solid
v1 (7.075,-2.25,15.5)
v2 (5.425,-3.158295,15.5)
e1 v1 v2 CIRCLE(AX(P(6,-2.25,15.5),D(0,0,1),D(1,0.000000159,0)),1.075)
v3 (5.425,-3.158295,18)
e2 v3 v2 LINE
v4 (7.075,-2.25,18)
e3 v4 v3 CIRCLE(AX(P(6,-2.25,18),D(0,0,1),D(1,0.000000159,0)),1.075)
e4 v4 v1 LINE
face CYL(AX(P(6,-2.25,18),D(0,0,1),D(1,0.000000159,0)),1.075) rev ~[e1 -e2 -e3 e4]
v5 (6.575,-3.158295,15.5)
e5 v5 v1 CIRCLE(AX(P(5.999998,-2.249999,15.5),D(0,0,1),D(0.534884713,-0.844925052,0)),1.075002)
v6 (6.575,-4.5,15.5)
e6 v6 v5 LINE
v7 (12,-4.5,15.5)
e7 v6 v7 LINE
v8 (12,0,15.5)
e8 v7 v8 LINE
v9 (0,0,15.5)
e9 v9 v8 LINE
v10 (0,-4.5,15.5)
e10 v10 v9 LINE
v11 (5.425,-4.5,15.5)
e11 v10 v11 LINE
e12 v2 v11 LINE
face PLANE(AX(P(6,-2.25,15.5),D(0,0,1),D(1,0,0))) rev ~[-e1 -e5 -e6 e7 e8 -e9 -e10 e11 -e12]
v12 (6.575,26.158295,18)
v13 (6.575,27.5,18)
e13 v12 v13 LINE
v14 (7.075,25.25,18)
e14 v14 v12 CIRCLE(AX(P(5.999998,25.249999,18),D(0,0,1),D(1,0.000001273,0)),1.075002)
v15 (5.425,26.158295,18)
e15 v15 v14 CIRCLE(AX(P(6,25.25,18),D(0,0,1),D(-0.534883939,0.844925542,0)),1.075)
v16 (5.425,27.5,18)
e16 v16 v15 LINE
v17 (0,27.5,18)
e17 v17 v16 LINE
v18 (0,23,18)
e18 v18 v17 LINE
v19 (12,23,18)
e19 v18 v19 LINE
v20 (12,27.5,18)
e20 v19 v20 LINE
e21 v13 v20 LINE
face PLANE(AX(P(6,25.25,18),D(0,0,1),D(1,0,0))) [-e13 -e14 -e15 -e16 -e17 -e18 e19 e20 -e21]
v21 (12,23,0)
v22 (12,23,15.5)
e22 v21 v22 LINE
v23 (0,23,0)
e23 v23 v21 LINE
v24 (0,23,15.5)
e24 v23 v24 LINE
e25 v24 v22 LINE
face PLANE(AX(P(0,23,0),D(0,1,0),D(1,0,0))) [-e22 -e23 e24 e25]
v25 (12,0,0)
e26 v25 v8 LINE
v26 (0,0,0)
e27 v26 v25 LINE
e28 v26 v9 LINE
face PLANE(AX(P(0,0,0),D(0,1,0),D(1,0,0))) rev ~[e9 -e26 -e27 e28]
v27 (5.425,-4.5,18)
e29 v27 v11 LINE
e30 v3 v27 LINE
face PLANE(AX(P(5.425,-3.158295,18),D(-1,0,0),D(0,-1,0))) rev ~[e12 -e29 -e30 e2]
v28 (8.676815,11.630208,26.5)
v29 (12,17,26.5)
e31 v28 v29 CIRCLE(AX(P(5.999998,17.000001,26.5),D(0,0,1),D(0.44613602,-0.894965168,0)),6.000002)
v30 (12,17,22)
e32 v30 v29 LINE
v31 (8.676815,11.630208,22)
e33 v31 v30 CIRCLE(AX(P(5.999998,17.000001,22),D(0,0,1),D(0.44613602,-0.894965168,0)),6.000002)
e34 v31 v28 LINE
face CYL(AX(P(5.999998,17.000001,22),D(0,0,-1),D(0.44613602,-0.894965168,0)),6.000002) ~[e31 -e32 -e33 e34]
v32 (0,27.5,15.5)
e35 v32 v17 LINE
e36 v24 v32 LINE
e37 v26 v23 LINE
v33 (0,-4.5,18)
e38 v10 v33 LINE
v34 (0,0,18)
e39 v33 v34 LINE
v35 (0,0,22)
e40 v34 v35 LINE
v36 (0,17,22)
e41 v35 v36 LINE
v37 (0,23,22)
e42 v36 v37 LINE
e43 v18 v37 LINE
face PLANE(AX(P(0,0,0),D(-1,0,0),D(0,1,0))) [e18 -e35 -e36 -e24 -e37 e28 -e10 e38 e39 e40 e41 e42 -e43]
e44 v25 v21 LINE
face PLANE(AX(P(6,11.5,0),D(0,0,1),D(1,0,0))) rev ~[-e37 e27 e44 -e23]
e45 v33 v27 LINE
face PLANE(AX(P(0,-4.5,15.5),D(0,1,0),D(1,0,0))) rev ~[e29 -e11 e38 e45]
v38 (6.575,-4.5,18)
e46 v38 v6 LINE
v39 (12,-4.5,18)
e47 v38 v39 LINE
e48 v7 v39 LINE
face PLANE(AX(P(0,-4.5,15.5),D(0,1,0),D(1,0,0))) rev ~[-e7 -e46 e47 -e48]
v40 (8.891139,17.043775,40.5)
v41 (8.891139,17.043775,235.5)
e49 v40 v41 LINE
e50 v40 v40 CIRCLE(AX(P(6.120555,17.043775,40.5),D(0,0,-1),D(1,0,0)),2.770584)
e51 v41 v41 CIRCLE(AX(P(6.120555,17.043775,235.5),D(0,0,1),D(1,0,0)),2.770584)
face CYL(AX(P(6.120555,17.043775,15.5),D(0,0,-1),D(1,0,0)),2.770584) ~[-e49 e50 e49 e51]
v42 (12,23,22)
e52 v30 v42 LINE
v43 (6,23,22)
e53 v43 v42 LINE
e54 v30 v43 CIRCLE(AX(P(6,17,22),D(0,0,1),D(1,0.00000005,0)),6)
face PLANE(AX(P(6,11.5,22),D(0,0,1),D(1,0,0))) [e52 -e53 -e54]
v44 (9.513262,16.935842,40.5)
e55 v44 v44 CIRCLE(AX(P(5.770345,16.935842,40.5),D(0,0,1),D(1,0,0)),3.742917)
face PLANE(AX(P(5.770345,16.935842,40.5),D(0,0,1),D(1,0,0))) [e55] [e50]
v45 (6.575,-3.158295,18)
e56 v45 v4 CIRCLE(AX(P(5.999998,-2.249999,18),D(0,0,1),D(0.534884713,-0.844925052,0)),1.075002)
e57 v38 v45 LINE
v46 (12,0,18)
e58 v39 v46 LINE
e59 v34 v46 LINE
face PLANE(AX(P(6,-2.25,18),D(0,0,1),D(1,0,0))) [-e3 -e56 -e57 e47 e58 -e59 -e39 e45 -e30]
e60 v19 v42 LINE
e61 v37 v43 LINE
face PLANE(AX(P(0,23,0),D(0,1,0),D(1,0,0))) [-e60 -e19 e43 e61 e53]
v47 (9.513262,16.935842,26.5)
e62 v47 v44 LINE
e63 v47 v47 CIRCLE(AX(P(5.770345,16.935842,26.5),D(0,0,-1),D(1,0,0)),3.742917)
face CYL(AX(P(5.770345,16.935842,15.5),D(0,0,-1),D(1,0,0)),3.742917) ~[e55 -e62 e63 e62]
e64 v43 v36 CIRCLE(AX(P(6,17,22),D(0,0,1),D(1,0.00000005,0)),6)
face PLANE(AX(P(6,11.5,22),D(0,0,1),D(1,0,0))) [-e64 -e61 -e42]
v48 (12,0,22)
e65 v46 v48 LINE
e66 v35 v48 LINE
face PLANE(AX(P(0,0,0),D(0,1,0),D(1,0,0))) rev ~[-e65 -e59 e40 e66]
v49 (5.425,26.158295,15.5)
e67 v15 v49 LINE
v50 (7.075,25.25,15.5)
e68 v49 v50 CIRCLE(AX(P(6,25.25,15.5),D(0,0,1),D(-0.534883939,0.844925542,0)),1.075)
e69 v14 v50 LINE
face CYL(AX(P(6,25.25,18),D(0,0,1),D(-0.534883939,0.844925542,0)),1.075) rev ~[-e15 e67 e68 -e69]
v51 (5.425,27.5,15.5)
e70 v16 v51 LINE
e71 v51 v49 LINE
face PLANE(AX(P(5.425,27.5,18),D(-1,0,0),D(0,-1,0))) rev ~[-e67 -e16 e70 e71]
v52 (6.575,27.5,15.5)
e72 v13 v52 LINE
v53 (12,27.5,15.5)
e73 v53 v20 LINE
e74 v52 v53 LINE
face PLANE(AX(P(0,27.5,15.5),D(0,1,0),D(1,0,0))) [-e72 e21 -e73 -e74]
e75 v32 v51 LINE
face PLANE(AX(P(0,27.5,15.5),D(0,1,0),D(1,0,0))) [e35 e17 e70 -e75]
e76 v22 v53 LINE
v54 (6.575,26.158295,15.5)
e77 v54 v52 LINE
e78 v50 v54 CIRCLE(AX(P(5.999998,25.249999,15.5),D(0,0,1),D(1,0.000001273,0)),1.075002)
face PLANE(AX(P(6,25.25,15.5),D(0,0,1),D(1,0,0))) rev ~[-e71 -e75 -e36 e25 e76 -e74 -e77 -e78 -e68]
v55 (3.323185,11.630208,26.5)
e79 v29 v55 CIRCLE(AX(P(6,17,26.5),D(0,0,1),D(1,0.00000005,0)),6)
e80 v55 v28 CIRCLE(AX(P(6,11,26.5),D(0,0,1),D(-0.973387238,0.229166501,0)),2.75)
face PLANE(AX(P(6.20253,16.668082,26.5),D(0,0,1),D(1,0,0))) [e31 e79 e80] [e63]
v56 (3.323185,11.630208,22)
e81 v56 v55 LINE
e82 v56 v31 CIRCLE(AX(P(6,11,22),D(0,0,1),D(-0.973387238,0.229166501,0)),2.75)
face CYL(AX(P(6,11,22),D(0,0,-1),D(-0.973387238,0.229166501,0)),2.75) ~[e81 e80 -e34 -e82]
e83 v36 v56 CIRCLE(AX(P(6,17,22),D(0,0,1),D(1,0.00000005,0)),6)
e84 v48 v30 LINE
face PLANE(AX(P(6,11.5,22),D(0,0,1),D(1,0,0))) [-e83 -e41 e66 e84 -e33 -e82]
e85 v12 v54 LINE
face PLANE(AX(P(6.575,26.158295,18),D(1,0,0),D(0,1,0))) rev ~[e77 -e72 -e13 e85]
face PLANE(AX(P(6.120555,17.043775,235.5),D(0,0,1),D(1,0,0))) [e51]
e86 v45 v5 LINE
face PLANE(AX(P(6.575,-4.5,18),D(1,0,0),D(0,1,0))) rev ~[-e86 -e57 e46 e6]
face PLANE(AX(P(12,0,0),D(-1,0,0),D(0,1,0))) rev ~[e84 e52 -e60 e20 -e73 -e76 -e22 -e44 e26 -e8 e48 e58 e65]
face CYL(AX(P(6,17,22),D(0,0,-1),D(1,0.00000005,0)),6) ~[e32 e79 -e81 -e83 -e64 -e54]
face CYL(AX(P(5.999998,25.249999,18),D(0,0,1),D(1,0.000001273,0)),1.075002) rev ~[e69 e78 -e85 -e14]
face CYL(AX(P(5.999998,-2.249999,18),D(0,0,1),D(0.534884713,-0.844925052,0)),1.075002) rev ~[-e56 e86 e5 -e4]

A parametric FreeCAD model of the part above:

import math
import FreeCAD as App
import Part
import Sketcher

V = App.Vector
Q = App.Units.Quantity


def add_polygon(sketch, points):
    """Adds a closed chain of lines whose ends are joined by coincident constraints."""
    first, n = sketch.GeometryCount, len(points)
    for a, b in zip(points, points[1:] + points[:1]):
        sketch.addGeometry(Part.LineSegment(App.Vector(*a, 0), App.Vector(*b, 0)), False)
    for i in range(n):
        sketch.addConstraint(Sketcher.Constraint("Coincident", first + i, 2, first + (i + 1) % n, 1))

doc = App.newDocument("Part")
body = doc.addObject("PartDesign::Body", "Body")

# Sketch on XY plane
sketch1 = body.newObject("Sketcher::SketchObject", "Sketch")
sketch1.AttachmentSupport = (doc.getObject("XY_Plane"), [""])
sketch1.MapMode = "FlatFace"
add_polygon(sketch1, [(0, 23), (0, 0), (12, 0), (12, 23)])  # lines 0-3
sketch1.addConstraint([
    Sketcher.Constraint("Vertical", 0),
    Sketcher.Constraint("Horizontal", 1),
    Sketcher.Constraint("Vertical", 2),
    Sketcher.Constraint("Horizontal", 3),
    Sketcher.Constraint("Coincident", 0, 2, -1, 1),
    Sketcher.Constraint("DistanceX", 1, 1, 1, 2, Q("12 mm")),
    Sketcher.Constraint("DistanceY", 0, 2, 0, 1, Q("23 mm")),
])
pad1 = body.newObject("PartDesign::Pad", "Pad")
pad1.Profile = sketch1
pad1.Length = 22

# Sketch on XY plane
sketch2 = body.newObject("Sketcher::SketchObject", "Sketch001")
sketch2.AttachmentSupport = (doc.getObject("XY_Plane"), [""])
sketch2.MapMode = "FlatFace"
sketch2.AttachmentOffset = App.Placement(V(0, 0, 15.5), App.Rotation())
add_polygon(sketch2, [(0, 27.5), (0, 23), (12, 23), (12, 27.5)])  # lines 0-3
add_polygon(sketch2, [(0, 0), (0, -4.5), (12, -4.5), (12, 0)])  # lines 4-7
sketch2.addConstraint([
    Sketcher.Constraint("Vertical", 0),
    Sketcher.Constraint("Horizontal", 1),
    Sketcher.Constraint("Vertical", 2),
    Sketcher.Constraint("Horizontal", 3),
    Sketcher.Constraint("Vertical", 4),
    Sketcher.Constraint("Horizontal", 5),
    Sketcher.Constraint("Vertical", 6),
    Sketcher.Constraint("Horizontal", 7),
    Sketcher.Constraint("Coincident", 7, 2, -1, 1),
    Sketcher.Constraint("PointOnObject", 0, 2, -2),
    Sketcher.Constraint("Vertical", 2, 2, 5, 2),
    Sketcher.Constraint("Equal", 2, 4),
    Sketcher.Constraint("DistanceX", 1, 1, 1, 2, Q("12 mm")),
    Sketcher.Constraint("DistanceY", 0, 2, 0, 1, Q("4.5 mm")),
    Sketcher.Constraint("DistanceY", -1, 1, 0, 2, Q("23 mm")),
])
pad2 = body.newObject("PartDesign::Pad", "Pad001")
pad2.Profile = sketch2
pad2.Length = 2.5

# Sketch on XY plane
sketch3 = body.newObject("Sketcher::SketchObject", "Sketch002")
sketch3.AttachmentSupport = (doc.getObject("XY_Plane"), [""])
sketch3.MapMode = "FlatFace"
sketch3.AttachmentOffset = App.Placement(V(0, 0, 18), App.Rotation())
sketch3.addGeometry([
    Part.ArcOfCircle(Part.Circle(V(6, 25.3, 0), V(0, 0, 1), 1.1), math.radians(122), math.radians(360)),  # 0
    Part.ArcOfCircle(Part.Circle(V(6, 25.2, 0), V(0, 0, 1), 1.1), math.radians(0), math.radians(58)),  # 1
    Part.LineSegment(V(6.6, 26.2, 0), V(6.6, 27.5, 0)),  # 2
    Part.LineSegment(V(6.6, 27.5, 0), V(5.4, 27.5, 0)),  # 3
    Part.LineSegment(V(5.4, 27.5, 0), V(5.4, 26.2, 0)),  # 4
    Part.LineSegment(V(5.4, -4.5, 0), V(6.6, -4.5, 0)),  # 5
    Part.LineSegment(V(6.6, -4.5, 0), V(6.6, -3.2, 0)),  # 6
    Part.ArcOfCircle(Part.Circle(V(6, -2.2, 0), V(0, 0, 1), 1.1), math.radians(-58), math.radians(0)),  # 7
    Part.ArcOfCircle(Part.Circle(V(6, -2.3, 0), V(0, 0, 1), 1.1), math.radians(0), math.radians(238)),  # 8
    Part.LineSegment(V(5.4, -3.2, 0), V(5.4, -4.5, 0)),  # 9
], False)
sketch3.addConstraint([
    Sketcher.Constraint("Tangent", 0, 2, 1, 1),
    Sketcher.Constraint("Coincident", 1, 2, 2, 1),
    Sketcher.Constraint("Coincident", 2, 2, 3, 1),
    Sketcher.Constraint("Coincident", 3, 2, 4, 1),
    Sketcher.Constraint("Coincident", 4, 2, 0, 1),
    Sketcher.Constraint("Coincident", 5, 2, 6, 1),
    Sketcher.Constraint("Coincident", 6, 2, 7, 1),
    Sketcher.Constraint("Tangent", 7, 2, 8, 1),
    Sketcher.Constraint("Coincident", 8, 2, 9, 1),
    Sketcher.Constraint("Coincident", 9, 2, 5, 1),
    Sketcher.Constraint("Vertical", 2),
    Sketcher.Constraint("Horizontal", 3),
    Sketcher.Constraint("Vertical", 4),
    Sketcher.Constraint("Horizontal", 5),
    Sketcher.Constraint("Vertical", 6),
    Sketcher.Constraint("Vertical", 9),
    Sketcher.Constraint("Equal", 1, 7),
    Sketcher.Constraint("Equal", 0, 8),
    Sketcher.Constraint("Horizontal", 1, 3, 0, 2),
    Sketcher.Constraint("Horizontal", 1, 2, 4, 2),
    Sketcher.Constraint("Horizontal", 8, 3, 7, 2),
    Sketcher.Constraint("Horizontal", 6, 2, 8, 2),
    Sketcher.Constraint("Vertical", 1, 3, 7, 3),
    Sketcher.Constraint("Vertical", 2, 2, 5, 2),
    Sketcher.Constraint("Equal", 4, 6),
    Sketcher.Constraint("DistanceX", -1, 1, 0, 3, Q("6 mm")),
    Sketcher.Constraint("Radius", 0, Q("1.075 mm")),
    Sketcher.Constraint("DistanceX", 3, 2, 3, 1, Q("1.15 mm")),
    Sketcher.Constraint("DistanceY", -1, 1, 2, 2, Q("27.5 mm")),
    Sketcher.Constraint("DistanceY", 5, 2, -1, 1, Q("4.5 mm")),
    Sketcher.Constraint("DistanceY", 7, 3, 0, 3, Q("27.499999 mm")),
    Sketcher.Constraint("DistanceX", 1, 2, 0, 2, Q("0.5 mm")),
])
pocket1 = body.newObject("PartDesign::Pocket", "Pocket")
pocket1.Profile = sketch3
pocket1.Type = "ThroughAll"

# Sketch on XY plane
sketch4 = body.newObject("Sketcher::SketchObject", "Sketch003")
sketch4.AttachmentSupport = (doc.getObject("XY_Plane"), [""])
sketch4.MapMode = "FlatFace"
sketch4.AttachmentOffset = App.Placement(V(0, 0, 22), App.Rotation())
sketch4.addGeometry([
    Part.ArcOfCircle(Part.Circle(V(6, 17, 0), V(0, 0, 1), 6), math.radians(-64), math.radians(0)),
    Part.ArcOfCircle(Part.Circle(V(6, 17, 0), V(0, 0, 1), 6), math.radians(0), math.radians(244)),
    Part.ArcOfCircle(Part.Circle(V(6, 11, 0), V(0, 0, 1), 2.8), math.radians(167), math.radians(373)),
], False)
sketch4.addConstraint([
    Sketcher.Constraint("Tangent", 0, 2, 1, 1),
    Sketcher.Constraint("Coincident", 1, 2, 2, 1),
    Sketcher.Constraint("Coincident", 2, 2, 0, 1),
    Sketcher.Constraint("Equal", 0, 1),
    Sketcher.Constraint("Horizontal", 1, 3, 0, 2),
    Sketcher.Constraint("Horizontal", 1, 2, 2, 2),
    Sketcher.Constraint("Radius", 1, Q("6 mm")),
    Sketcher.Constraint("Radius", 2, Q("2.75 mm")),
    Sketcher.Constraint("DistanceY", -1, 1, 0, 3, Q("17.000001 mm")),
    Sketcher.Constraint("DistanceX", -1, 1, 1, 3, Q("6 mm")),
    Sketcher.Constraint("DistanceY", -1, 1, 2, 3, Q("11 mm")),
])
pad3 = body.newObject("PartDesign::Pad", "Pad002")
pad3.Profile = sketch4
pad3.Length = 4.5

# Sketch on XY plane
sketch5 = body.newObject("Sketcher::SketchObject", "Sketch004")
sketch5.AttachmentSupport = (doc.getObject("XY_Plane"), [""])
sketch5.MapMode = "FlatFace"
sketch5.AttachmentOffset = App.Placement(V(0, 0, 26.5), App.Rotation())
sketch5.addGeometry(Part.Circle(V(6, 17, 0), V(0, 0, 1), 2.4), False)
sketch5.addConstraint([
    Sketcher.Constraint("Diameter", 0, Q("4.85 mm")),
    Sketcher.Constraint("DistanceX", -1, 1, 0, 3, Q("6 mm")),
    Sketcher.Constraint("DistanceY", -1, 1, 0, 3, Q("17 mm")),
])
pad4 = body.newObject("PartDesign::Pad", "Pad003")
pad4.Profile = sketch5
pad4.Length = 3

# Sketch on XY plane
sketch6 = body.newObject("Sketcher::SketchObject", "Sketch005")
sketch6.AttachmentSupport = (doc.getObject("XY_Plane"), [""])
sketch6.MapMode = "FlatFace"
sketch6.AttachmentOffset = App.Placement(V(0, 0, 15.5), App.Rotation())
sketch6.addGeometry(Part.Circle(V(5.8, 16.9, 0), V(0, 0, 1), 3.7), False)
sketch6.addConstraint([
    Sketcher.Constraint("Diameter", 0, Q("7.485834 mm")),
    Sketcher.Constraint("DistanceX", -1, 1, 0, 3, Q("5.770345 mm")),
    Sketcher.Constraint("DistanceY", -1, 1, 0, 3, Q("16.935842 mm")),
])
pad5 = body.newObject("PartDesign::Pad", "Pad004")
pad5.Profile = sketch6
pad5.Length = 25

# Sketch on XY plane
sketch7 = body.newObject("Sketcher::SketchObject", "Sketch006")
sketch7.AttachmentSupport = (doc.getObject("XY_Plane"), [""])
sketch7.MapMode = "FlatFace"
sketch7.AttachmentOffset = App.Placement(V(0, 0, 15.5), App.Rotation())
sketch7.addGeometry(Part.Circle(V(6.1, 17, 0), V(0, 0, 1), 2.8), False)
sketch7.addConstraint([
    Sketcher.Constraint("Diameter", 0, Q("5.541168 mm")),
    Sketcher.Constraint("DistanceX", -1, 1, 0, 3, Q("6.120555 mm")),
    Sketcher.Constraint("DistanceY", -1, 1, 0, 3, Q("17.043775 mm")),
])
pad6 = body.newObject("PartDesign::Pad", "Pad005")
pad6.Profile = sketch7
pad6.Length = 220

doc.recompute()
